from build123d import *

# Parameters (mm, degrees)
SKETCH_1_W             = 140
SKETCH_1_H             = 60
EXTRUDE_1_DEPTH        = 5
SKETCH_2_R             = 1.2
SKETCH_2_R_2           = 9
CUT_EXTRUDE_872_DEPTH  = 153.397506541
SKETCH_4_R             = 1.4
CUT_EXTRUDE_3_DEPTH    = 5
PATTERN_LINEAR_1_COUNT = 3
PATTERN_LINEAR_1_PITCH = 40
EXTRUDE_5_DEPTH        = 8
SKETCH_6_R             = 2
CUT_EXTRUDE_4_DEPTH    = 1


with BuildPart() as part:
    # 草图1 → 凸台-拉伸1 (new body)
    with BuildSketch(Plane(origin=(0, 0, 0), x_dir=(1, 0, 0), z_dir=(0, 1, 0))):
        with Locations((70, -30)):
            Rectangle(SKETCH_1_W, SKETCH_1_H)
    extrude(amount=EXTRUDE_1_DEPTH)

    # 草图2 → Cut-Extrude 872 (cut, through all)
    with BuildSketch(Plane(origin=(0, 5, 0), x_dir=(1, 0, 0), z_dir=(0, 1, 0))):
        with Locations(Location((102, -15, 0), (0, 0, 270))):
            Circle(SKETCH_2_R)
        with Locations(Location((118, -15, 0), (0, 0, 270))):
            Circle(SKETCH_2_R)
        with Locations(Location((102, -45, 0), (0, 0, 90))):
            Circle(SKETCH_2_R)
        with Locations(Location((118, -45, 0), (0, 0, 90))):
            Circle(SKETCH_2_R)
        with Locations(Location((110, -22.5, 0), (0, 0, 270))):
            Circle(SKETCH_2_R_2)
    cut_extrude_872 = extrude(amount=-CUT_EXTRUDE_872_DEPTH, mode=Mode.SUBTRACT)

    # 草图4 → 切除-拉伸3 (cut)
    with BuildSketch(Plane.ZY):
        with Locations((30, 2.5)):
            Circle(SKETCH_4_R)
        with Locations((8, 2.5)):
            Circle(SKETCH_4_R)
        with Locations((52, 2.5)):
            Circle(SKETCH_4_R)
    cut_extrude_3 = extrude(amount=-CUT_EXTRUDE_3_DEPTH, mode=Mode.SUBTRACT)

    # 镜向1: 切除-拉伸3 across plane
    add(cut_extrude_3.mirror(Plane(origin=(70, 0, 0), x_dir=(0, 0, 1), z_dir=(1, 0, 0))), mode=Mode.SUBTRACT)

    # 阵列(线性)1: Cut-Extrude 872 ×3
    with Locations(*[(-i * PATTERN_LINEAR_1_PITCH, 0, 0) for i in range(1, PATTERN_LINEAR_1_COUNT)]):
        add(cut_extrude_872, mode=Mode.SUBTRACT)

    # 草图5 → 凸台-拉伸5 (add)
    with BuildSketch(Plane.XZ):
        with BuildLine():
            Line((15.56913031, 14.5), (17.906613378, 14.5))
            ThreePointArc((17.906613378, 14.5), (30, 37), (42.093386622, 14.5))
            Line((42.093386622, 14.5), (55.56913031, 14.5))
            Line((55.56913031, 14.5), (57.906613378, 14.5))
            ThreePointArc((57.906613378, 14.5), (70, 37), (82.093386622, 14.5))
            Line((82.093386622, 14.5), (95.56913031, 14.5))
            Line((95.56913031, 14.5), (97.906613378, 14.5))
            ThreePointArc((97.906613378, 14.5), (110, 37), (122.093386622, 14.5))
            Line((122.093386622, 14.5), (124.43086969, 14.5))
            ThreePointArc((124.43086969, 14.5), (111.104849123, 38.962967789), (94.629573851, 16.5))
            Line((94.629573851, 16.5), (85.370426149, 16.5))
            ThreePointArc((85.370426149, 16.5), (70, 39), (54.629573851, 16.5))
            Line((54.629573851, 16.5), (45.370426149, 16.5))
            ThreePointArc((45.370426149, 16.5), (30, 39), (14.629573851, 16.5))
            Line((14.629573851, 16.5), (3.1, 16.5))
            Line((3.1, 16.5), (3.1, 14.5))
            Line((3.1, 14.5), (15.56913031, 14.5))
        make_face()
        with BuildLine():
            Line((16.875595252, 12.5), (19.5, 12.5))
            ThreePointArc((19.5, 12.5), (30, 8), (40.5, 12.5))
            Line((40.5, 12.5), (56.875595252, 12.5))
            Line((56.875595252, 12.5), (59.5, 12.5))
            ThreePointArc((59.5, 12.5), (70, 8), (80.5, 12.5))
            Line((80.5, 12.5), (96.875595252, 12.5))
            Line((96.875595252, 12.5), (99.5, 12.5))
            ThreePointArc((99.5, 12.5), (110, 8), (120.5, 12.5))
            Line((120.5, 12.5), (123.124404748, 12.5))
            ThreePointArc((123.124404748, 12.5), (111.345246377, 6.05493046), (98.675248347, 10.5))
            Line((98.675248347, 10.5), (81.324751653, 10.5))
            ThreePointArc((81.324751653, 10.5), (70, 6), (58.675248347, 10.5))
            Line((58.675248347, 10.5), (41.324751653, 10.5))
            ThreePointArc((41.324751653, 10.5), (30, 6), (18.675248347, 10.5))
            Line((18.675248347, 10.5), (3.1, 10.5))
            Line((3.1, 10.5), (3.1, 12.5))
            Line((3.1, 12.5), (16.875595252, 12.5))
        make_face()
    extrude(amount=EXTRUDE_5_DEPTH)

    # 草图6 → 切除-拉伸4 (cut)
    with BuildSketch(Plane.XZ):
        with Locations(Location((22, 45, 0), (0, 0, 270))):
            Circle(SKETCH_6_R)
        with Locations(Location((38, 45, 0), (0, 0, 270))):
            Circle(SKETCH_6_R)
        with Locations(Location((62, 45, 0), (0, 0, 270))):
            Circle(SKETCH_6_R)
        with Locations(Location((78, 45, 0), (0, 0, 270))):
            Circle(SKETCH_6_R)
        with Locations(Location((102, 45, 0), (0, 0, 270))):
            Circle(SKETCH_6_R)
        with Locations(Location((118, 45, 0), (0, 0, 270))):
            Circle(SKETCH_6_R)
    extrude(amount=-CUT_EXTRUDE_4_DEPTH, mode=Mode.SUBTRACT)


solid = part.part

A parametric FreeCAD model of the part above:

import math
import FreeCAD as App
import Part
import Sketcher
from FreeCAD import Vector

doc = App.newDocument("Part")
body = doc.addObject("PartDesign::Body", "Body")

# Sketch on XZ plane
sketch1 = body.newObject("Sketcher::SketchObject", "Sketch")
sketch1.AttachmentSupport = (doc.getObject("XZ_Plane"), [""])
sketch1.MapMode = "FlatFace"
sketch1.addGeometry(Part.LineSegment(Vector(0, 0, 0), Vector(0, 60, 0)), False)
sketch1.addGeometry(Part.LineSegment(Vector(0, 60, 0), Vector(140, 60, 0)), False)
sketch1.addGeometry(Part.LineSegment(Vector(140, 60, 0), Vector(140, 0, 0)), False)
sketch1.addGeometry(Part.LineSegment(Vector(140, 0, 0), Vector(0, 0, 0)), False)
sketch1.addConstraint(Sketcher.Constraint("Coincident", 0, 2, 1, 1))
sketch1.addConstraint(Sketcher.Constraint("Coincident", 1, 2, 2, 1))
sketch1.addConstraint(Sketcher.Constraint("Coincident", 2, 2, 3, 1))
sketch1.addConstraint(Sketcher.Constraint("Coincident", 3, 2, 0, 1))
sketch1.addConstraint(Sketcher.Constraint("Vertical", 0))
sketch1.addConstraint(Sketcher.Constraint("Horizontal", 1))
sketch1.addConstraint(Sketcher.Constraint("Vertical", 2))
sketch1.addConstraint(Sketcher.Constraint("Horizontal", 3))
sketch1.addConstraint(Sketcher.Constraint("Coincident", 3, 2, -1, 1))
sketch1.addConstraint(Sketcher.Constraint("DistanceX", 1, 1, 1, 2, 140.0))
sketch1.addConstraint(Sketcher.Constraint("DistanceY", 0, 1, 0, 2, 60.0))
pad1 = body.newObject("PartDesign::Pad", "Pad")
pad1.Profile = sketch1
pad1.Length = 5
pad1.Reversed = True

# Sketch on XZ plane
sketch2 = body.newObject("Sketcher::SketchObject", "Sketch001")
sketch2.AttachmentSupport = (doc.getObject("XZ_Plane"), [""])
sketch2.MapMode = "FlatFace"
sketch2.AttachmentOffset = App.Placement(Vector(0, 0, -5), App.Rotation())
sketch2.addGeometry(Part.Circle(Vector(102, 15, 0), Vector(0, 0, 1), 1.2), False)
sketch2.addGeometry(Part.Circle(Vector(118, 15, 0), Vector(0, 0, 1), 1.2), False)
sketch2.addGeometry(Part.Circle(Vector(102, 45, 0), Vector(0, 0, 1), 1.2), False)
sketch2.addGeometry(Part.Circle(Vector(118, 45, 0), Vector(0, 0, 1), 1.2), False)
sketch2.addGeometry(Part.Circle(Vector(110, 22.5, 0), Vector(0, 0, 1), 9), False)
sketch2.addConstraint(Sketcher.Constraint("Equal", 0, 1))
sketch2.addConstraint(Sketcher.Constraint("Equal", 1, 2))
sketch2.addConstraint(Sketcher.Constraint("Equal", 2, 3))
sketch2.addConstraint(Sketcher.Constraint("Horizontal", 0, 3, 1, 3))
sketch2.addConstraint(Sketcher.Constraint("Horizontal", 2, 3, 3, 3))
sketch2.addConstraint(Sketcher.Constraint("Vertical", 0, 3, 2, 3))
sketch2.addConstraint(Sketcher.Constraint("Vertical", 1, 3, 3, 3))
sketch2.addConstraint(Sketcher.Constraint("Diameter", 4, 18.0))
sketch2.addConstraint(Sketcher.Constraint("Diameter", 0, 2.4))
sketch2.addConstraint(Sketcher.Constraint("DistanceX", -1, 1, 0, 3, 102.0))
sketch2.addConstraint(Sketcher.Constraint("DistanceY", -1, 1, 0, 3, 15.0))
sketch2.addConstraint(Sketcher.Constraint("DistanceX", -1, 1, 1, 3, 118.0))
sketch2.addConstraint(Sketcher.Constraint("DistanceY", -1, 1, 2, 3, 45.0))
sketch2.addConstraint(Sketcher.Constraint("DistanceX", -1, 1, 4, 3, 110.0))
sketch2.addConstraint(Sketcher.Constraint("DistanceY", -1, 1, 4, 3, 22.5))
pocket1 = body.newObject("PartDesign::Pocket", "Pocket")
pocket1.Profile = sketch2
pocket1.Type = "ThroughAll"
pocket1.Reversed = True

# Sketch on YZ plane
sketch3 = body.newObject("Sketcher::SketchObject", "Sketch002")
sketch3.AttachmentSupport = (doc.getObject("YZ_Plane"), [""])
sketch3.MapMode = "FlatFace"
sketch3.addGeometry(Part.Circle(Vector(2.5, 30, 0), Vector(0, 0, 1), 1.4), False)
sketch3.addGeometry(Part.Circle(Vector(2.5, 8, 0), Vector(0, 0, 1), 1.4), False)
sketch3.addGeometry(Part.Circle(Vector(2.5, 52, 0), Vector(0, 0, 1), 1.4), False)
sketch3.addConstraint(Sketcher.Constraint("Equal", 0, 1))
sketch3.addConstraint(Sketcher.Constraint("Equal", 1, 2))
sketch3.addConstraint(Sketcher.Constraint("Vertical", 0, 3, 1, 3))
sketch3.addConstraint(Sketcher.Constraint("Vertical", 1, 3, 2, 3))
sketch3.addConstraint(Sketcher.Constraint("Diameter", 0, 2.8))
sketch3.addConstraint(Sketcher.Constraint("DistanceY", -1, 1, 0, 3, 30.0))
sketch3.addConstraint(Sketcher.Constraint("DistanceY", -1, 1, 1, 3, 8.0))
sketch3.addConstraint(Sketcher.Constraint("DistanceY", -1, 1, 2, 3, 52.0))
sketch3.addConstraint(Sketcher.Constraint("DistanceX", -1, 1, 0, 3, 2.5))
pocket2 = body.newObject("PartDesign::Pocket", "Pocket001")
pocket2.Profile = sketch3
pocket2.Length = 5
pocket2.Reversed = True
doc.recompute()

datumplane = body.newObject("PartDesign::Plane", "DatumPlane")
datumplane.AttachmentSupport = (doc.getObject("YZ_Plane"), [""])
datumplane.MapMode = "FlatFace"
datumplane.AttachmentOffset = App.Placement(Vector(0, 0, 70), App.Rotation())
mirrored = body.newObject("PartDesign::Mirrored", "Mirrored")
mirrored.Originals = [pocket2]
mirrored.MirrorPlane = (datumplane, [""])
body.Tip = mirrored
doc.recompute()

linearpattern = body.newObject("PartDesign::LinearPattern", "LinearPattern")
linearpattern.Originals = [pocket1]
linearpattern.Direction = (doc.getObject("X_Axis"), [""])
linearpattern.Mode = "offset"
linearpattern.Offset = 40
linearpattern.Occurrences = 3
linearpattern.Reversed = True
body.Tip = linearpattern

# Sketch on XZ plane
sketch4 = body.newObject("Sketcher::SketchObject", "Sketch003")
sketch4.AttachmentSupport = (doc.getObject("XZ_Plane"), [""])
sketch4.MapMode = "FlatFace"
sketch4.addGeometry(Part.ArcOfCircle(Part.Circle(Vector(30, 22.5, 0), Vector(0, 0, 1), 14.5), math.radians(-33), math.radians(213)), False)
sketch4.addGeometry(Part.LineSegment(Vector(42.1, 14.5, 0), Vector(57.9, 14.5, 0)), False)
sketch4.addGeometry(Part.ArcOfCircle(Part.Circle(Vector(70, 22.5, 0), Vector(0, 0, 1), 14.5), math.radians(-33), math.radians(213)), False)
sketch4.addGeometry(Part.LineSegment(Vector(82.1, 14.5, 0), Vector(97.9, 14.5, 0)), False)
sketch4.addGeometry(Part.ArcOfCircle(Part.Circle(Vector(110, 22.5, 0), Vector(0, 0, 1), 14.5), math.radians(-33), math.radians(213)), False)
sketch4.addGeometry(Part.LineSegment(Vector(122.1, 14.5, 0), Vector(124.4, 14.5, 0)), False)
sketch4.addGeometry(Part.ArcOfCircle(Part.Circle(Vector(110, 22.5, 0), Vector(0, 0, 1), 16.5), math.radians(-29), math.radians(201)), False)
sketch4.addGeometry(Part.LineSegment(Vector(94.6, 16.5, 0), Vector(85.4, 16.5, 0)), False)
sketch4.addGeometry(Part.ArcOfCircle(Part.Circle(Vector(70, 22.5, 0), Vector(0, 0, 1), 16.5), math.radians(-21), math.radians(201)), False)
sketch4.addGeometry(Part.LineSegment(Vector(54.6, 16.5, 0), Vector(45.4, 16.5, 0)), False)
sketch4.addGeometry(Part.ArcOfCircle(Part.Circle(Vector(30, 22.5, 0), Vector(0, 0, 1), 16.5), math.radians(-21), math.radians(201)), False)
sketch4.addGeometry(Part.LineSegment(Vector(14.6, 16.5, 0), Vector(3.1, 16.5, 0)), False)
sketch4.addGeometry(Part.LineSegment(Vector(3.1, 16.5, 0), Vector(3.1, 14.5, 0)), False)
sketch4.addGeometry(Part.LineSegment(Vector(3.1, 14.5, 0), Vector(17.9, 14.5, 0)), False)
sketch4.addGeometry(Part.ArcOfCircle(Part.Circle(Vector(30, 22.5, 0), Vector(0, 0, 1), 14.5), math.radians(-136), math.radians(-44)), False)
sketch4.addGeometry(Part.LineSegment(Vector(19.5, 12.5, 0), Vector(3.1, 12.5, 0)), False)
sketch4.addGeometry(Part.LineSegment(Vector(3.1, 12.5, 0), Vector(3.1, 10.5, 0)), False)
sketch4.addGeometry(Part.LineSegment(Vector(3.1, 10.5, 0), Vector(18.7, 10.5, 0)), False)
sketch4.addGeometry(Part.ArcOfCircle(Part.Circle(Vector(30, 22.5, 0), Vector(0, 0, 1), 16.5), math.radians(-133), math.radians(-47)), False)
sketch4.addGeometry(Part.LineSegment(Vector(41.3, 10.5, 0), Vector(58.7, 10.5, 0)), False)
sketch4.addGeometry(Part.ArcOfCircle(Part.Circle(Vector(70, 22.5, 0), Vector(0, 0, 1), 16.5), math.radians(-133), math.radians(-47)), False)
sketch4.addGeometry(Part.LineSegment(Vector(81.3, 10.5, 0), Vector(98.7, 10.5, 0)), False)
sketch4.addGeometry(Part.ArcOfCircle(Part.Circle(Vector(110, 22.5, 0), Vector(0, 0, 1), 16.5), math.radians(-133), math.radians(-37)), False)
sketch4.addGeometry(Part.LineSegment(Vector(123.1, 12.5, 0), Vector(120.5, 12.5, 0)), False)
sketch4.addGeometry(Part.ArcOfCircle(Part.Circle(Vector(110, 22.5, 0), Vector(0, 0, 1), 14.5), math.radians(-136), math.radians(-44)), False)
sketch4.addGeometry(Part.LineSegment(Vector(99.5, 12.5, 0), Vector(80.5, 12.5, 0)), False)
sketch4.addGeometry(Part.ArcOfCircle(Part.Circle(Vector(70, 22.5, 0), Vector(0, 0, 1), 14.5), math.radians(-136), math.radians(-44)), False)
sketch4.addGeometry(Part.LineSegment(Vector(59.5, 12.5, 0), Vector(40.5, 12.5, 0)), False)
sketch4.addConstraint(Sketcher.Constraint("Coincident", 0, 1, 1, 1))
sketch4.addConstraint(Sketcher.Constraint("Coincident", 1, 2, 2, 2))
sketch4.addConstraint(Sketcher.Constraint("Coincident", 2, 1, 3, 1))
sketch4.addConstraint(Sketcher.Constraint("Coincident", 3, 2, 4, 2))
sketch4.addConstraint(Sketcher.Constraint("Coincident", 4, 1, 5, 1))
sketch4.addConstraint(Sketcher.Constraint("Coincident", 5, 2, 6, 1))
sketch4.addConstraint(Sketcher.Constraint("Coincident", 6, 2, 7, 1))
sketch4.addConstraint(Sketcher.Constraint("Coincident", 7, 2, 8, 1))
sketch4.addConstraint(Sketcher.Constraint("Coincident", 8, 2, 9, 1))
sketch4.addConstraint(Sketcher.Constraint("Coincident", 9, 2, 10, 1))
sketch4.addConstraint(Sketcher.Constraint("Coincident", 10, 2, 11, 1))
sketch4.addConstraint(Sketcher.Constraint("Coincident", 11, 2, 12, 1))
sketch4.addConstraint(Sketcher.Constraint("Coincident", 12, 2, 13, 1))
sketch4.addConstraint(Sketcher.Constraint("Coincident", 13, 2, 0, 2))
sketch4.addConstraint(Sketcher.Constraint("Coincident", 14, 1, 15, 1))
sketch4.addConstraint(Sketcher.Constraint("Coincident", 15, 2, 16, 1))
sketch4.addConstraint(Sketcher.Constraint("Coincident", 16, 2, 17, 1))
sketch4.addConstraint(Sketcher.Constraint("Coincident", 17, 2, 18, 1))
sketch4.addConstraint(Sketcher.Constraint("Coincident", 18, 2, 19, 1))
sketch4.addConstraint(Sketcher.Constraint("Coincident", 19, 2, 20, 1))
sketch4.addConstraint(Sketcher.Constraint("Coincident", 20, 2, 21, 1))
sketch4.addConstraint(Sketcher.Constraint("Coincident", 21, 2, 22, 1))
sketch4.addConstraint(Sketcher.Constraint("Coincident", 22, 2, 23, 1))
sketch4.addConstraint(Sketcher.Constraint("Coincident", 23, 2, 24, 2))
sketch4.addConstraint(Sketcher.Constraint("Coincident", 24, 1, 25, 1))
sketch4.addConstraint(Sketcher.Constraint("Coincident", 25, 2, 26, 2))
sketch4.addConstraint(Sketcher.Constraint("Coincident", 26, 1, 27, 1))
sketch4.addConstraint(Sketcher.Constraint("Coincident", 27, 2, 14, 2))
sketch4.addConstraint(Sketcher.Constraint("Horizontal", 1))
sketch4.addConstraint(Sketcher.Constraint("Horizontal", 3))
sketch4.addConstraint(Sketcher.Constraint("Horizontal", 5))
sketch4.addConstraint(Sketcher.Constraint("Horizontal", 7))
sketch4.addConstraint(Sketcher.Constraint("Horizontal", 9))
sketch4.addConstraint(Sketcher.Constraint("Horizontal", 11))
sketch4.addConstraint(Sketcher.Constraint("Vertical", 12))
sketch4.addConstraint(Sketcher.Constraint("Horizontal", 13))
sketch4.addConstraint(Sketcher.Constraint("Horizontal", 15))
sketch4.addConstraint(Sketcher.Constraint("Vertical", 16))
sketch4.addConstraint(Sketcher.Constraint("Horizontal", 17))
sketch4.addConstraint(Sketcher.Constraint("Horizontal", 19))
sketch4.addConstraint(Sketcher.Constraint("Horizontal", 21))
sketch4.addConstraint(Sketcher.Constraint("Horizontal", 23))
sketch4.addConstraint(Sketcher.Constraint("Horizontal", 25))
sketch4.addConstraint(Sketcher.Constraint("Horizontal", 27))
sketch4.addConstraint(Sketcher.Constraint("Coincident", 6, 3, 4, 3))
sketch4.addConstraint(Sketcher.Constraint("Coincident", 8, 3, 2, 3))
sketch4.addConstraint(Sketcher.Constraint("Coincident", 10, 3, 0, 3))
sketch4.addConstraint(Sketcher.Constraint("Coincident", 14, 3, 0, 3))
sketch4.addConstraint(Sketcher.Constraint("Coincident", 18, 3, 0, 3))
sketch4.addConstraint(Sketcher.Constraint("Coincident", 20, 3, 2, 3))
sketch4.addConstraint(Sketcher.Constraint("Coincident", 22, 3, 4, 3))
sketch4.addConstraint(Sketcher.Constraint("Coincident", 24, 3, 4, 3))
sketch4.addConstraint(Sketcher.Constraint("Coincident", 26, 3, 2, 3))
sketch4.addConstraint(Sketcher.Constraint("Equal", 0, 2))
sketch4.addConstraint(Sketcher.Constraint("Equal", 2, 4))
sketch4.addConstraint(Sketcher.Constraint("Equal", 6, 8))
sketch4.addConstraint(Sketcher.Constraint("Equal", 8, 10))
sketch4.addConstraint(Sketcher.Constraint("Equal", 4, 14))
sketch4.addConstraint(Sketcher.Constraint("Equal", 10, 18))
sketch4.addConstraint(Sketcher.Constraint("Equal", 18, 20))
sketch4.addConstraint(Sketcher.Constraint("Equal", 20, 22))
sketch4.addConstraint(Sketcher.Constraint("Equal", 14, 24))
sketch4.addConstraint(Sketcher.Constraint("Equal", 24, 26))
sketch4.addConstraint(Sketcher.Constraint("Horizontal", 0, 3, 2, 3))
sketch4.addConstraint(Sketcher.Constraint("Horizontal", 2, 3, 4, 3))
sketch4.addConstraint(Sketcher.Constraint("Horizontal", 1, 2, 2, 1))
sketch4.addConstraint(Sketcher.Constraint("Horizontal", 3, 2, 4, 1))
sketch4.addConstraint(Sketcher.Constraint("Horizontal", 7, 2, 8, 2))
sketch4.addConstraint(Sketcher.Constraint("Horizontal", 9, 2, 10, 2))
sketch4.addConstraint(Sketcher.Constraint("Horizontal", 5, 2, 12, 2))
sketch4.addConstraint(Sketcher.Constraint("Horizontal", 17, 2, 18, 2))
sketch4.addConstraint(Sketcher.Constraint("Horizontal", 19, 2, 20, 2))
sketch4.addConstraint(Sketcher.Constraint("Horizontal", 15, 2, 22, 2))
sketch4.addConstraint(Sketcher.Constraint("Horizontal", 23, 2, 24, 1))
sketch4.addConstraint(Sketcher.Constraint("Horizontal", 25, 2, 26, 1))
sketch4.addConstraint(Sketcher.Constraint("Vertical", 12, 2, 15, 2))
sketch4.addConstraint(Sketcher.Constraint("Equal", 1, 3))
sketch4.addConstraint(Sketcher.Constraint("Equal", 12, 16))
sketch4.addConstraint(Sketcher.Constraint("Radius", 0, 14.5))
sketch4.addConstraint(Sketcher.Constraint("Radius", 6, 16.5))
sketch4.addConstraint(Sketcher.Constraint("DistanceX", 25, 2, 25, 1, 19.0))
sketch4.addConstraint(Sketcher.Constraint("DistanceY", 12, 2, 12, 1, 2.0))
sketch4.addConstraint(Sketcher.Constraint("DistanceX", 15, 2, 15, 1, 16.4))
sketch4.addConstraint(Sketcher.Constraint("DistanceX", -1, 1, 0, 3, 30.0))
sketch4.addConstraint(Sketcher.Constraint("DistanceX", -1, 1, 2, 3, 70.0))
sketch4.addConstraint(Sketcher.Constraint("DistanceY", 0, 1, 0, 3, 8.0))
sketch4.addConstraint(Sketcher.Constraint("DistanceY", -1, 1, 0, 3, 22.5))
pad2 = body.newObject("PartDesign::Pad", "Pad001")
pad2.Profile = sketch4
pad2.Length = 8

# Sketch on XZ plane
sketch5 = body.newObject("Sketcher::SketchObject", "Sketch004")
sketch5.AttachmentSupport = (doc.getObject("XZ_Plane"), [""])
sketch5.MapMode = "FlatFace"
sketch5.addGeometry(Part.Circle(Vector(22, 45, 0), Vector(0, 0, 1), 2), False)
sketch5.addGeometry(Part.Circle(Vector(38, 45, 0), Vector(0, 0, 1), 2), False)
sketch5.addGeometry(Part.Circle(Vector(62, 45, 0), Vector(0, 0, 1), 2), False)
sketch5.addGeometry(Part.Circle(Vector(78, 45, 0), Vector(0, 0, 1), 2), False)
sketch5.addGeometry(Part.Circle(Vector(102, 45, 0), Vector(0, 0, 1), 2), False)
sketch5.addGeometry(Part.Circle(Vector(118, 45, 0), Vector(0, 0, 1), 2), False)
sketch5.addConstraint(Sketcher.Constraint("Equal", 0, 1))
sketch5.addConstraint(Sketcher.Constraint("Equal", 1, 2))
sketch5.addConstraint(Sketcher.Constraint("Equal", 2, 3))
sketch5.addConstraint(Sketcher.Constraint("Equal", 3, 4))
sketch5.addConstraint(Sketcher.Constraint("Equal", 4, 5))
sketch5.addConstraint(Sketcher.Constraint("Horizontal", 0, 3, 1, 3))
sketch5.addConstraint(Sketcher.Constraint("Horizontal", 1, 3, 2, 3))
sketch5.addConstraint(Sketcher.Constraint("Horizontal", 2, 3, 3, 3))
sketch5.addConstraint(Sketcher.Constraint("Horizontal", 3, 3, 4, 3))
sketch5.addConstraint(Sketcher.Constraint("Horizontal", 4, 3, 5, 3))
sketch5.addConstraint(Sketcher.Constraint("Diameter", 0, 4.0))
sketch5.addConstraint(Sketcher.Constraint("DistanceX", -1, 1, 0, 3, 22.0))
sketch5.addConstraint(Sketcher.Constraint("DistanceY", -1, 1, 0, 3, 45.0))
sketch5.addConstraint(Sketcher.Constraint("DistanceX", -1, 1, 1, 3, 38.0))
sketch5.addConstraint(Sketcher.Constraint("DistanceX", -1, 1, 2, 3, 62.0))
sketch5.addConstraint(Sketcher.Constraint("DistanceX", -1, 1, 3, 3, 78.0))
sketch5.addConstraint(Sketcher.Constraint("DistanceX", -1, 1, 4, 3, 102.0))
sketch5.addConstraint(Sketcher.Constraint("DistanceX", -1, 1, 5, 3, 118.0))
pocket3 = body.newObject("PartDesign::Pocket", "Pocket002")
pocket3.Profile = sketch5
pocket3.Length = 1

doc.recompute()
